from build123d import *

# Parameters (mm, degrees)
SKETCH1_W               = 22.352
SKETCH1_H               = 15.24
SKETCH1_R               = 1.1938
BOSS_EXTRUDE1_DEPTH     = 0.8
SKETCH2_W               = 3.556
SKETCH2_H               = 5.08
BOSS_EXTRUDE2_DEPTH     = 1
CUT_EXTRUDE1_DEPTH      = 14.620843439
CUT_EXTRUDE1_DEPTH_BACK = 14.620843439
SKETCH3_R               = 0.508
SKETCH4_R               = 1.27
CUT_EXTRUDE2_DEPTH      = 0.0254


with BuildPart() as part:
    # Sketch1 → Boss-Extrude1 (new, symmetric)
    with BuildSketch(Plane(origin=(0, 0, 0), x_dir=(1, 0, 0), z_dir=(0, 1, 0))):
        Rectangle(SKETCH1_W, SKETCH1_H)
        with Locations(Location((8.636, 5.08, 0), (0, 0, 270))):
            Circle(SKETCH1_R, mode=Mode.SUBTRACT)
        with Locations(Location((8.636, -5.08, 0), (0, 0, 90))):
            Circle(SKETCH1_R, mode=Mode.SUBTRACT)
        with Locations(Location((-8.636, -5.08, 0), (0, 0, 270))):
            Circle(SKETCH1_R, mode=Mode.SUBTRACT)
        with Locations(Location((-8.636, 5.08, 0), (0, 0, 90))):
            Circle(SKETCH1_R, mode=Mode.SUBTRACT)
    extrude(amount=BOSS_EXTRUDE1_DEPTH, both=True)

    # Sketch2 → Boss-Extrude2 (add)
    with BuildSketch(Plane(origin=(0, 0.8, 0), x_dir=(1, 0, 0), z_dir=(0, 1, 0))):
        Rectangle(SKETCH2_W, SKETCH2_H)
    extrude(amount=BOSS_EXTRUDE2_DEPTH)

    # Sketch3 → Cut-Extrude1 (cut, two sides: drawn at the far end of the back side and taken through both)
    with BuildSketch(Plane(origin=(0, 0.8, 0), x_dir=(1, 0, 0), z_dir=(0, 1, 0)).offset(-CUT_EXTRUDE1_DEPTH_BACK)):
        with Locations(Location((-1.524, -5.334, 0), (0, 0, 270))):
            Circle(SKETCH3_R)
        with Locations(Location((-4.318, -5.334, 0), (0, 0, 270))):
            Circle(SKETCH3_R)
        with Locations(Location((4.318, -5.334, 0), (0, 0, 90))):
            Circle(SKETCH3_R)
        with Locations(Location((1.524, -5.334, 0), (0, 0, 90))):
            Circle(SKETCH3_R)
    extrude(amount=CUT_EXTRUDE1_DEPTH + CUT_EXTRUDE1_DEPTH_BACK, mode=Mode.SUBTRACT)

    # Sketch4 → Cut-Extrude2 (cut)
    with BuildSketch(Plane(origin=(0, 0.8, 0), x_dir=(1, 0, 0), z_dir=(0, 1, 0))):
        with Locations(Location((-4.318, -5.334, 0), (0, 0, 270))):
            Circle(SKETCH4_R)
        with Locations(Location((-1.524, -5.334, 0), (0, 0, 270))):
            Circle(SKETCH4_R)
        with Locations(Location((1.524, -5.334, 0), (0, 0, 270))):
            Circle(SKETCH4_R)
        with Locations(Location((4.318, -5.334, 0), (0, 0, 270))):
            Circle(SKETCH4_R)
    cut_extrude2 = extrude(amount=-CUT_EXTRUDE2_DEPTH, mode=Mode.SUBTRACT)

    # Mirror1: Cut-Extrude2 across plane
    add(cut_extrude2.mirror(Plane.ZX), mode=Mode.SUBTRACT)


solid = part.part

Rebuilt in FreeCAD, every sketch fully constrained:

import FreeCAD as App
import Part
import Sketcher
Q = App.Units.Quantity


def add_polygon(sketch, points):
    """Adds a closed chain of lines whose ends are joined by coincident constraints."""
    first, n = sketch.GeometryCount, len(points)
    for a, b in zip(points, points[1:] + points[:1]):
        sketch.addGeometry(Part.LineSegment(App.Vector(*a, 0), App.Vector(*b, 0)), False)
    for i in range(n):
        sketch.addConstraint(Sketcher.Constraint("Coincident", first + i, 2, first + (i + 1) % n, 1))

doc = App.newDocument("Part")
body = doc.addObject("PartDesign::Body", "Body")

# Sketch on XZ plane
sketch1 = body.newObject("Sketcher::SketchObject", "Sketch")
sketch1.AttachmentSupport = (doc.getObject("XZ_Plane"), [""])
sketch1.MapMode = "FlatFace"
add_polygon(sketch1, [(-11.176, -7.62), (-11.176, 7.62), (11.176, 7.62), (11.176, -7.62)])  # lines 0-3
sketch1.addGeometry(Part.Circle(App.Vector(-8.636, 5.08, 0), App.Vector(0, 0, 1), 1.1938), False)  # 4
sketch1.addGeometry(Part.Circle(App.Vector(8.636, 5.08, 0), App.Vector(0, 0, 1), 1.1938), False)  # 5
sketch1.addGeometry(Part.Circle(App.Vector(-8.636, -5.08, 0), App.Vector(0, 0, 1), 1.1938), False)  # 6
sketch1.addGeometry(Part.Circle(App.Vector(8.636, -5.08, 0), App.Vector(0, 0, 1), 1.1938), False)  # 7
sketch1.addConstraint(Sketcher.Constraint("Vertical", 0))
sketch1.addConstraint(Sketcher.Constraint("Horizontal", 1))
sketch1.addConstraint(Sketcher.Constraint("Vertical", 2))
sketch1.addConstraint(Sketcher.Constraint("Horizontal", 3))
sketch1.addConstraint(Sketcher.Constraint("Equal", 4, 5))
sketch1.addConstraint(Sketcher.Constraint("Equal", 5, 6))
sketch1.addConstraint(Sketcher.Constraint("Equal", 6, 7))
sketch1.addConstraint(Sketcher.Constraint("Symmetric", 5, 3, 6, 3, -1, 1))
sketch1.addConstraint(Sketcher.Constraint("Symmetric", 4, 3, 7, 3, -1, 1))
sketch1.addConstraint(Sketcher.Constraint("Symmetric", 0, 2, 2, 2, -1, 1))
sketch1.addConstraint(Sketcher.Constraint("Symmetric", 4, 3, 5, 3, -2))
sketch1.addConstraint(Sketcher.Constraint("Diameter", 4, Q("0.094 in")))
sketch1.addConstraint(Sketcher.Constraint("DistanceY", 0, 1, 0, 2, Q("0.6 in")))
sketch1.addConstraint(Sketcher.Constraint("DistanceX", 1, 1, 1, 2, Q("0.88 in")))
sketch1.addConstraint(Sketcher.Constraint("DistanceY", -1, 1, 4, 3, Q("0.2 in")))
sketch1.addConstraint(Sketcher.Constraint("DistanceX", 0, 2, 4, 3, Q("0.1 in")))
pad1 = body.newObject("PartDesign::Pad", "Pad")
pad1.Profile = sketch1
pad1.Length = 1.6
pad1.Midplane = True

# Sketch on XZ plane
sketch2 = body.newObject("Sketcher::SketchObject", "Sketch001")
sketch2.AttachmentSupport = (doc.getObject("XZ_Plane"), [""])
sketch2.MapMode = "FlatFace"
sketch2.AttachmentOffset = App.Placement(App.Vector(0, 0, -0.8), App.Rotation())
add_polygon(sketch2, [(-1.778, -2.54), (-1.778, 2.54), (1.778, 2.54), (1.778, -2.54)])  # lines 0-3
sketch2.addConstraint(Sketcher.Constraint("Vertical", 0))
sketch2.addConstraint(Sketcher.Constraint("Horizontal", 1))
sketch2.addConstraint(Sketcher.Constraint("Vertical", 2))
sketch2.addConstraint(Sketcher.Constraint("Horizontal", 3))
sketch2.addConstraint(Sketcher.Constraint("Symmetric", 0, 2, 2, 2, -1, 1))
sketch2.addConstraint(Sketcher.Constraint("DistanceY", 0, 1, 0, 2, Q("0.2 in")))
sketch2.addConstraint(Sketcher.Constraint("DistanceX", 1, 1, 1, 2, Q("0.14 in")))
pad2 = body.newObject("PartDesign::Pad", "Pad001")
pad2.Profile = sketch2
pad2.Length = 1
pad2.Reversed = True

# Sketch on XZ plane
sketch3 = body.newObject("Sketcher::SketchObject", "Sketch002")
sketch3.AttachmentSupport = (doc.getObject("XZ_Plane"), [""])
sketch3.MapMode = "FlatFace"
sketch3.AttachmentOffset = App.Placement(App.Vector(0, 0, -0.8), App.Rotation())
sketch3.addGeometry(Part.Circle(App.Vector(-1.524, 5.334, 0), App.Vector(0, 0, 1), 0.508), False)
sketch3.addGeometry(Part.Circle(App.Vector(-4.318, 5.334, 0), App.Vector(0, 0, 1), 0.508), False)
sketch3.addGeometry(Part.Circle(App.Vector(4.318, 5.334, 0), App.Vector(0, 0, 1), 0.508), False)
sketch3.addGeometry(Part.Circle(App.Vector(1.524, 5.334, 0), App.Vector(0, 0, 1), 0.508), False)
sketch3.addConstraint(Sketcher.Constraint("Equal", 0, 1))
sketch3.addConstraint(Sketcher.Constraint("Equal", 1, 2))
sketch3.addConstraint(Sketcher.Constraint("Equal", 2, 3))
sketch3.addConstraint(Sketcher.Constraint("Symmetric", 1, 3, 2, 3, -2))
sketch3.addConstraint(Sketcher.Constraint("Symmetric", 0, 3, 3, 3, -2))
sketch3.addConstraint(Sketcher.Constraint("Horizontal", 0, 3, 1, 3))
sketch3.addConstraint(Sketcher.Constraint("Diameter", 0, Q("0.04 in")))
sketch3.addConstraint(Sketcher.Constraint("DistanceX", 0, 3, -1, 1, Q("0.06 in")))
sketch3.addConstraint(Sketcher.Constraint("DistanceY", -1, 1, 0, 3, Q("0.21 in")))
sketch3.addConstraint(Sketcher.Constraint("DistanceX", 1, 3, -1, 1, Q("0.17 in")))
pocket1 = body.newObject("PartDesign::Pocket", "Pocket")
pocket1.Profile = sketch3
pocket1.Type = "ThroughAll"
pocket1.Midplane = True

# Sketch on XZ plane
sketch4 = body.newObject("Sketcher::SketchObject", "Sketch003")
sketch4.AttachmentSupport = (doc.getObject("XZ_Plane"), [""])
sketch4.MapMode = "FlatFace"
sketch4.AttachmentOffset = App.Placement(App.Vector(0, 0, -0.8), App.Rotation())
sketch4.addGeometry(Part.Circle(App.Vector(-4.318, 5.334, 0), App.Vector(0, 0, 1), 1.27), False)
sketch4.addGeometry(Part.Circle(App.Vector(-1.524, 5.334, 0), App.Vector(0, 0, 1), 1.27), False)
sketch4.addGeometry(Part.Circle(App.Vector(1.524, 5.334, 0), App.Vector(0, 0, 1), 1.27), False)
sketch4.addGeometry(Part.Circle(App.Vector(4.318, 5.334, 0), App.Vector(0, 0, 1), 1.27), False)
sketch4.addConstraint(Sketcher.Constraint("Equal", 0, 1))
sketch4.addConstraint(Sketcher.Constraint("Equal", 1, 2))
sketch4.addConstraint(Sketcher.Constraint("Equal", 2, 3))
sketch4.addConstraint(Sketcher.Constraint("Symmetric", 1, 3, 2, 3, -2))
sketch4.addConstraint(Sketcher.Constraint("Symmetric", 0, 3, 3, 3, -2))
sketch4.addConstraint(Sketcher.Constraint("Horizontal", 0, 3, 1, 3))
sketch4.addConstraint(Sketcher.Constraint("Diameter", 0, Q("0.1 in")))
sketch4.addConstraint(Sketcher.Constraint("DistanceX", 0, 3, -1, 1, Q("0.17 in")))
sketch4.addConstraint(Sketcher.Constraint("DistanceY", -1, 1, 0, 3, Q("0.21 in")))
sketch4.addConstraint(Sketcher.Constraint("DistanceX", 1, 3, -1, 1, Q("0.06 in")))
pocket2 = body.newObject("PartDesign::Pocket", "Pocket001")
pocket2.Profile = sketch4
pocket2.Length = Q("0.001 in")
pocket2.Reversed = True
doc.recompute()

mirrored = body.newObject("PartDesign::Mirrored", "Mirrored")
mirrored.Originals = [pocket2]
mirrored.MirrorPlane = (doc.getObject("XZ_Plane"), [""])
body.Tip = mirrored

doc.recompute()
